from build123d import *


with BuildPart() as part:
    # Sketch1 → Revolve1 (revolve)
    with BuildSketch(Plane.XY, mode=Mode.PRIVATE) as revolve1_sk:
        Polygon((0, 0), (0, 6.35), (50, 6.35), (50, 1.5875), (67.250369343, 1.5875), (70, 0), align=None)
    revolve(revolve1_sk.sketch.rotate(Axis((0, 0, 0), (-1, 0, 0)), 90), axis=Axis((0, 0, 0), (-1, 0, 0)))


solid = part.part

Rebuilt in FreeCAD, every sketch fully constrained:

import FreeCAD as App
import Part
import Sketcher
from FreeCAD import Vector
Q = App.Units.Quantity

doc = App.newDocument("Part")
body = doc.addObject("PartDesign::Body", "Body")

# Sketch on XY plane
sketch1 = body.newObject("Sketcher::SketchObject", "Sketch")
sketch1.AttachmentSupport = (doc.getObject("XY_Plane"), [""])
sketch1.MapMode = "FlatFace"
sketch1.addGeometry(Part.LineSegment(Vector(0, 6.3, 0), Vector(0, 0, 0)), False)
sketch1.addGeometry(Part.LineSegment(Vector(0, 0, 0), Vector(70, 0, 0)), False)
sketch1.addGeometry(Part.LineSegment(Vector(70, 0, 0), Vector(67.3, 1.6, 0)), False)
sketch1.addGeometry(Part.LineSegment(Vector(67.3, 1.6, 0), Vector(50, 1.6, 0)), False)
sketch1.addGeometry(Part.LineSegment(Vector(50, 1.6, 0), Vector(50, 6.3, 0)), False)
sketch1.addGeometry(Part.LineSegment(Vector(50, 6.3, 0), Vector(0, 6.3, 0)), False)
sketch1.addConstraint(Sketcher.Constraint("Coincident", 0, 2, 1, 1))
sketch1.addConstraint(Sketcher.Constraint("Coincident", 1, 2, 2, 1))
sketch1.addConstraint(Sketcher.Constraint("Coincident", 2, 2, 3, 1))
sketch1.addConstraint(Sketcher.Constraint("Coincident", 3, 2, 4, 1))
sketch1.addConstraint(Sketcher.Constraint("Coincident", 4, 2, 5, 1))
sketch1.addConstraint(Sketcher.Constraint("Coincident", 5, 2, 0, 1))
sketch1.addConstraint(Sketcher.Constraint("Vertical", 0))
sketch1.addConstraint(Sketcher.Constraint("Horizontal", 1))
sketch1.addConstraint(Sketcher.Constraint("Horizontal", 3))
sketch1.addConstraint(Sketcher.Constraint("Vertical", 4))
sketch1.addConstraint(Sketcher.Constraint("Horizontal", 5))
sketch1.addConstraint(Sketcher.Constraint("Coincident", 0, 2, -1, 1))
sketch1.addConstraint(Sketcher.Constraint("Angle", 2, Q("150 deg")))
sketch1.addConstraint(Sketcher.Constraint("DistanceY", 0, 2, 0, 1, Q("0.25 in")))
sketch1.addConstraint(Sketcher.Constraint("DistanceY", 4, 1, 4, 2, Q("0.1875 in")))
sketch1.addConstraint(Sketcher.Constraint("DistanceX", 1, 1, 1, 2, 70.0))
sketch1.addConstraint(Sketcher.Constraint("DistanceX", 5, 2, 5, 1, 50.0))
revolution = body.newObject("PartDesign::Revolution", "Revolution")
revolution.Profile = sketch1
revolution.ReferenceAxis = (sketch1, ["H_Axis"])
revolution.Angle = 360

doc.recompute()
